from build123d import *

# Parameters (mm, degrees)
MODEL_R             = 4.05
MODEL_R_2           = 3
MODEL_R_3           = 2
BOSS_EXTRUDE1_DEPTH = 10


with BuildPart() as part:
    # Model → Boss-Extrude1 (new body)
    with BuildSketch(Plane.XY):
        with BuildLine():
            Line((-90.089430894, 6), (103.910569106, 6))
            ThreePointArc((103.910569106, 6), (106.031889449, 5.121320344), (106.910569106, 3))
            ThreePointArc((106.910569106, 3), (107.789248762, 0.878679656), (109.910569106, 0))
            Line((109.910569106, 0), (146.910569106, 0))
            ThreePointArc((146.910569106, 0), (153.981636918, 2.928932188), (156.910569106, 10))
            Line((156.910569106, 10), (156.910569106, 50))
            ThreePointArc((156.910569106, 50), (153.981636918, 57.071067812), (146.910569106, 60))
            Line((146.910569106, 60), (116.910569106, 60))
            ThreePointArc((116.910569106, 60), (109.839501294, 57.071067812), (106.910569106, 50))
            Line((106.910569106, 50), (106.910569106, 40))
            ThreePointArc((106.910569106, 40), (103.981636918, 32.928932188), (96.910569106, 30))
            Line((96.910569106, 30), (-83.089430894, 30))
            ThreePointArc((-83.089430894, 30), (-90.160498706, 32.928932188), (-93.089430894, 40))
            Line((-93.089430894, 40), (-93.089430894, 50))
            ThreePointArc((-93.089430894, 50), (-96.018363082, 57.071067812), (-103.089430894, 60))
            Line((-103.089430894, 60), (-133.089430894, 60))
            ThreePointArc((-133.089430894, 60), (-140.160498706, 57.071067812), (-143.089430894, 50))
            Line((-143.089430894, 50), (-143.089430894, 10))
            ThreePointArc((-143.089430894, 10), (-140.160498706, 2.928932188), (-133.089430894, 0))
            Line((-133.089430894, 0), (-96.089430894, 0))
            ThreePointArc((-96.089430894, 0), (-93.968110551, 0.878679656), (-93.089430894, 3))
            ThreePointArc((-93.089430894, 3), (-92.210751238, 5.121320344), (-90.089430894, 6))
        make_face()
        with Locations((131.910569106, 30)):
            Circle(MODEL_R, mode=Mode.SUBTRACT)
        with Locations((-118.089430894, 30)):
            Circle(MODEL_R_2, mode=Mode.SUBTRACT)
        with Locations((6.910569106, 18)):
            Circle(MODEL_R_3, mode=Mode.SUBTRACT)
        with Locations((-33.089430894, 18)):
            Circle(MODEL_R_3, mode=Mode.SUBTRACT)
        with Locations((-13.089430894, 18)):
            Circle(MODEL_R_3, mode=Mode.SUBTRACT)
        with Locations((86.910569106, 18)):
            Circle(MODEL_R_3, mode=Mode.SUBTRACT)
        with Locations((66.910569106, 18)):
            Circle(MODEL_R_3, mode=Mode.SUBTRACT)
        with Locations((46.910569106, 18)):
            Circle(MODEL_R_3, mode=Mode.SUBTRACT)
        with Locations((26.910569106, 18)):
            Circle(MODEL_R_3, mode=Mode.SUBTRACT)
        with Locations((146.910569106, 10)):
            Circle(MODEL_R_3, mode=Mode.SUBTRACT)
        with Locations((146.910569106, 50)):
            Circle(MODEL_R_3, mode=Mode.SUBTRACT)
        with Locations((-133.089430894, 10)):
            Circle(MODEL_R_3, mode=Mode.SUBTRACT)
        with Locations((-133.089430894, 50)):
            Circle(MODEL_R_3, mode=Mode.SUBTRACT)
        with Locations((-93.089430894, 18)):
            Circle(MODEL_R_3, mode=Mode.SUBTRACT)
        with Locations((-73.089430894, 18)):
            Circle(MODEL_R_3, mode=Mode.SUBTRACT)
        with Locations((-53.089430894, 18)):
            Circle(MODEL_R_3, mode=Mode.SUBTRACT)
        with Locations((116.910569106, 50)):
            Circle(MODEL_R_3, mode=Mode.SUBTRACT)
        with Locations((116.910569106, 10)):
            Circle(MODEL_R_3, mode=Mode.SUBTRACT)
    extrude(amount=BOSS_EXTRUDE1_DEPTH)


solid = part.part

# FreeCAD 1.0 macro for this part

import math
import FreeCAD as App
import Part
import Sketcher

V = App.Vector
Q = App.Units.Quantity

doc = App.newDocument("Part")
body = doc.addObject("PartDesign::Body", "Body")

sketch1 = body.newObject("Sketcher::SketchObject", "Sketch")
sketch1.AttachmentSupport = (doc.getObject("XY_Plane"), [""])
sketch1.MapMode = "FlatFace"
sketch1.addGeometry([
    Part.LineSegment(V(-90.089431, 6, 0), V(103.910569, 6, 0)),
    Part.ArcOfCircle(Part.Circle(V(103.910569, 3, 0), V(0, 0, 1), 3), math.radians(0), math.radians(90)),
    Part.ArcOfCircle(Part.Circle(V(109.910569, 3, 0), V(0, 0, 1), 3), math.radians(180), math.radians(270)),
    Part.LineSegment(V(109.910569, 0, 0), V(146.910569, 0, 0)),
    Part.ArcOfCircle(Part.Circle(V(146.910569, 10, 0), V(0, 0, 1), 10), math.radians(-90), math.radians(0)),
    Part.LineSegment(V(156.910569, 10, 0), V(156.910569, 50, 0)),
    Part.ArcOfCircle(Part.Circle(V(146.910569, 50, 0), V(0, 0, 1), 10), math.radians(0), math.radians(90)),
    Part.LineSegment(V(146.910569, 60, 0), V(116.910569, 60, 0)),
    Part.ArcOfCircle(Part.Circle(V(116.910569, 50, 0), V(0, 0, 1), 10), math.radians(90), math.radians(180)),
    Part.LineSegment(V(106.910569, 50, 0), V(106.910569, 40, 0)),
    Part.ArcOfCircle(Part.Circle(V(96.910569, 40, 0), V(0, 0, 1), 10), math.radians(-90), math.radians(0)),
    Part.LineSegment(V(96.910569, 30, 0), V(-83.089431, 30, 0)),
    Part.ArcOfCircle(Part.Circle(V(-83.089431, 40, 0), V(0, 0, 1), 10), math.radians(180), math.radians(270)),
    Part.LineSegment(V(-93.089431, 40, 0), V(-93.089431, 50, 0)),
    Part.ArcOfCircle(Part.Circle(V(-103.089431, 50, 0), V(0, 0, 1), 10), math.radians(0), math.radians(90)),
    Part.LineSegment(V(-103.089431, 60, 0), V(-133.089431, 60, 0)),
    Part.ArcOfCircle(Part.Circle(V(-133.089431, 50, 0), V(0, 0, 1), 10), math.radians(90), math.radians(180)),
    Part.LineSegment(V(-143.089431, 50, 0), V(-143.089431, 10, 0)),
    Part.ArcOfCircle(Part.Circle(V(-133.089431, 10, 0), V(0, 0, 1), 10), math.radians(180), math.radians(270)),
    Part.LineSegment(V(-133.089431, 0, 0), V(-96.089431, 0, 0)),
    Part.ArcOfCircle(Part.Circle(V(-96.089431, 3, 0), V(0, 0, 1), 3), math.radians(-90), math.radians(0)),
    Part.ArcOfCircle(Part.Circle(V(-90.089431, 3, 0), V(0, 0, 1), 3), math.radians(90), math.radians(180)),
    Part.Circle(V(-133.089431, 10, 0), V(0, 0, 1), 2),
    Part.Circle(V(-93.089431, 18, 0), V(0, 0, 1), 2),
    Part.Circle(V(-73.089431, 18, 0), V(0, 0, 1), 2),
    Part.Circle(V(-53.089431, 18, 0), V(0, 0, 1), 2),
    Part.Circle(V(-33.089431, 18, 0), V(0, 0, 1), 2),
    Part.Circle(V(-13.089431, 18, 0), V(0, 0, 1), 2),
    Part.Circle(V(6.910569, 18, 0), V(0, 0, 1), 2),
    Part.Circle(V(26.910569, 18, 0), V(0, 0, 1), 2),
    Part.Circle(V(46.910569, 18, 0), V(0, 0, 1), 2),
    Part.Circle(V(66.910569, 18, 0), V(0, 0, 1), 2),
    Part.Circle(V(116.910569, 10, 0), V(0, 0, 1), 2),
    Part.Circle(V(146.910569, 10, 0), V(0, 0, 1), 2),
    Part.Circle(V(86.910569, 18, 0), V(0, 0, 1), 2),
    Part.Circle(V(-118.089431, 30, 0), V(0, 0, 1), 3),
    Part.Circle(V(-133.089431, 50, 0), V(0, 0, 1), 2),
    Part.Circle(V(131.910569, 30, 0), V(0, 0, 1), 4.05),
    Part.Circle(V(116.910569, 50, 0), V(0, 0, 1), 2),
    Part.Circle(V(146.910569, 50, 0), V(0, 0, 1), 2),
], False)
sketch1.addConstraint([
    Sketcher.Constraint("Tangent", 0, 2, 1, 2),
    Sketcher.Constraint("Tangent", 1, 1, 2, 1),
    Sketcher.Constraint("Tangent", 2, 2, 3, 1),
    Sketcher.Constraint("Tangent", 3, 2, 4, 1),
    Sketcher.Constraint("Tangent", 4, 2, 5, 1),
    Sketcher.Constraint("Tangent", 5, 2, 6, 1),
    Sketcher.Constraint("Tangent", 6, 2, 7, 1),
    Sketcher.Constraint("Tangent", 7, 2, 8, 1),
    Sketcher.Constraint("Tangent", 8, 2, 9, 1),
    Sketcher.Constraint("Tangent", 9, 2, 10, 2),
    Sketcher.Constraint("Tangent", 10, 1, 11, 1),
    Sketcher.Constraint("Tangent", 11, 2, 12, 2),
    Sketcher.Constraint("Tangent", 12, 1, 13, 1),
    Sketcher.Constraint("Tangent", 13, 2, 14, 1),
    Sketcher.Constraint("Tangent", 14, 2, 15, 1),
    Sketcher.Constraint("Tangent", 15, 2, 16, 1),
    Sketcher.Constraint("Tangent", 16, 2, 17, 1),
    Sketcher.Constraint("Tangent", 17, 2, 18, 1),
    Sketcher.Constraint("Tangent", 18, 2, 19, 1),
    Sketcher.Constraint("Tangent", 19, 2, 20, 1),
    Sketcher.Constraint("Tangent", 20, 2, 21, 2),
    Sketcher.Constraint("Tangent", 21, 1, 0, 1),
    Sketcher.Constraint("Horizontal", 0),
    Sketcher.Constraint("Horizontal", 3),
    Sketcher.Constraint("Vertical", 5),
    Sketcher.Constraint("Horizontal", 7),
    Sketcher.Constraint("Vertical", 9),
    Sketcher.Constraint("Horizontal", 11),
    Sketcher.Constraint("Vertical", 13),
    Sketcher.Constraint("Horizontal", 15),
    Sketcher.Constraint("Vertical", 17),
    Sketcher.Constraint("Horizontal", 19),
    Sketcher.Constraint("Coincident", 22, 3, 18, 3),
    Sketcher.Constraint("Coincident", 33, 3, 4, 3),
    Sketcher.Constraint("Coincident", 36, 3, 16, 3),
    Sketcher.Constraint("Coincident", 38, 3, 8, 3),
    Sketcher.Constraint("Coincident", 39, 3, 6, 3),
    Sketcher.Constraint("Equal", 1, 2),
    Sketcher.Constraint("Equal", 4, 6),
    Sketcher.Constraint("Equal", 6, 8),
    Sketcher.Constraint("Equal", 8, 10),
    Sketcher.Constraint("Equal", 10, 12),
    Sketcher.Constraint("Equal", 12, 14),
    Sketcher.Constraint("Equal", 14, 16),
    Sketcher.Constraint("Equal", 16, 18),
    Sketcher.Constraint("Equal", 2, 20),
    Sketcher.Constraint("Equal", 20, 21),
    Sketcher.Constraint("Equal", 22, 23),
    Sketcher.Constraint("Equal", 23, 24),
    Sketcher.Constraint("Equal", 24, 25),
    Sketcher.Constraint("Equal", 25, 26),
    Sketcher.Constraint("Equal", 26, 27),
    Sketcher.Constraint("Equal", 27, 28),
    Sketcher.Constraint("Equal", 28, 29),
    Sketcher.Constraint("Equal", 29, 30),
    Sketcher.Constraint("Equal", 30, 31),
    Sketcher.Constraint("Equal", 31, 32),
    Sketcher.Constraint("Equal", 32, 33),
    Sketcher.Constraint("Equal", 33, 34),
    Sketcher.Constraint("Equal", 21, 35),
    Sketcher.Constraint("Equal", 34, 36),
    Sketcher.Constraint("Equal", 36, 38),
    Sketcher.Constraint("Equal", 38, 39),
    Sketcher.Constraint("PointOnObject", 2, 2, -1),
    Sketcher.Constraint("PointOnObject", 18, 2, -1),
    Sketcher.Constraint("Horizontal", 1, 3, 2, 3),
    Sketcher.Constraint("Horizontal", 8, 3, 14, 3),
    Sketcher.Constraint("Horizontal", 23, 3, 24, 3),
    Sketcher.Constraint("Horizontal", 24, 3, 25, 3),
    Sketcher.Constraint("Horizontal", 25, 3, 26, 3),
    Sketcher.Constraint("Horizontal", 26, 3, 27, 3),
    Sketcher.Constraint("Horizontal", 27, 3, 28, 3),
    Sketcher.Constraint("Horizontal", 28, 3, 29, 3),
    Sketcher.Constraint("Horizontal", 29, 3, 30, 3),
    Sketcher.Constraint("Horizontal", 30, 3, 31, 3),
    Sketcher.Constraint("Horizontal", 22, 3, 32, 3),
    Sketcher.Constraint("Horizontal", 31, 3, 34, 3),
    Sketcher.Constraint("Horizontal", 35, 3, 37, 3),
    Sketcher.Constraint("Horizontal", 37, 3, 10, 1),
    Sketcher.Constraint("Vertical", 8, 3, 32, 3),
    Sketcher.Constraint("Vertical", 1, 1, 8, 2),
    Sketcher.Constraint("Vertical", 23, 3, 12, 1),
    Sketcher.Constraint("Vertical", 13, 2, 20, 2),
    Sketcher.Constraint("Equal", 7, 15),
    Sketcher.Constraint("Diameter", 22, Q("4 mm")),
    Sketcher.Constraint("Diameter", 35, Q("6 mm")),
    Sketcher.Constraint("Radius", 4, Q("10 mm")),
    Sketcher.Constraint("Diameter", 37, Q("8.1 mm")),
    Sketcher.Constraint("DistanceX", 0, 1, 0, 2, Q("194 mm")),
    Sketcher.Constraint("DistanceX", 3, 1, 3, 2, Q("37 mm")),
    Sketcher.Constraint("DistanceY", 5, 1, 5, 2, Q("40 mm")),
    Sketcher.Constraint("DistanceY", 9, 2, 9, 1, Q("10 mm")),
    Sketcher.Constraint("DistanceY", -1, 1, 23, 3, Q("18 mm")),
    Sketcher.Constraint("DistanceX", 23, 3, 24, 3, Q("20 mm")),
    Sketcher.Constraint("DistanceX", 24, 3, 25, 3, Q("20 mm")),
    Sketcher.Constraint("DistanceX", 25, 3, 26, 3, Q("20 mm")),
    Sketcher.Constraint("DistanceX", 26, 3, 27, 3, Q("20 mm")),
    Sketcher.Constraint("DistanceX", 27, 3, 28, 3, Q("20 mm")),
    Sketcher.Constraint("DistanceX", 28, 3, 29, 3, Q("20 mm")),
    Sketcher.Constraint("DistanceX", 29, 3, 30, 3, Q("20 mm")),
    Sketcher.Constraint("DistanceX", 30, 3, 31, 3, Q("20 mm")),
    Sketcher.Constraint("DistanceX", 31, 3, 34, 3, Q("20 mm")),
    Sketcher.Constraint("DistanceX", 35, 3, 14, 3, Q("15 mm")),
    Sketcher.Constraint("DistanceX", 37, 3, 4, 3, Q("15 mm")),
    Sketcher.Constraint("DistanceX", -1, 1, 1, 3, Q("103.910569 mm")),
])
pad1 = body.newObject("PartDesign::Pad", "Pad")
pad1.Profile = sketch1
pad1.Length = 10

doc.recompute()
